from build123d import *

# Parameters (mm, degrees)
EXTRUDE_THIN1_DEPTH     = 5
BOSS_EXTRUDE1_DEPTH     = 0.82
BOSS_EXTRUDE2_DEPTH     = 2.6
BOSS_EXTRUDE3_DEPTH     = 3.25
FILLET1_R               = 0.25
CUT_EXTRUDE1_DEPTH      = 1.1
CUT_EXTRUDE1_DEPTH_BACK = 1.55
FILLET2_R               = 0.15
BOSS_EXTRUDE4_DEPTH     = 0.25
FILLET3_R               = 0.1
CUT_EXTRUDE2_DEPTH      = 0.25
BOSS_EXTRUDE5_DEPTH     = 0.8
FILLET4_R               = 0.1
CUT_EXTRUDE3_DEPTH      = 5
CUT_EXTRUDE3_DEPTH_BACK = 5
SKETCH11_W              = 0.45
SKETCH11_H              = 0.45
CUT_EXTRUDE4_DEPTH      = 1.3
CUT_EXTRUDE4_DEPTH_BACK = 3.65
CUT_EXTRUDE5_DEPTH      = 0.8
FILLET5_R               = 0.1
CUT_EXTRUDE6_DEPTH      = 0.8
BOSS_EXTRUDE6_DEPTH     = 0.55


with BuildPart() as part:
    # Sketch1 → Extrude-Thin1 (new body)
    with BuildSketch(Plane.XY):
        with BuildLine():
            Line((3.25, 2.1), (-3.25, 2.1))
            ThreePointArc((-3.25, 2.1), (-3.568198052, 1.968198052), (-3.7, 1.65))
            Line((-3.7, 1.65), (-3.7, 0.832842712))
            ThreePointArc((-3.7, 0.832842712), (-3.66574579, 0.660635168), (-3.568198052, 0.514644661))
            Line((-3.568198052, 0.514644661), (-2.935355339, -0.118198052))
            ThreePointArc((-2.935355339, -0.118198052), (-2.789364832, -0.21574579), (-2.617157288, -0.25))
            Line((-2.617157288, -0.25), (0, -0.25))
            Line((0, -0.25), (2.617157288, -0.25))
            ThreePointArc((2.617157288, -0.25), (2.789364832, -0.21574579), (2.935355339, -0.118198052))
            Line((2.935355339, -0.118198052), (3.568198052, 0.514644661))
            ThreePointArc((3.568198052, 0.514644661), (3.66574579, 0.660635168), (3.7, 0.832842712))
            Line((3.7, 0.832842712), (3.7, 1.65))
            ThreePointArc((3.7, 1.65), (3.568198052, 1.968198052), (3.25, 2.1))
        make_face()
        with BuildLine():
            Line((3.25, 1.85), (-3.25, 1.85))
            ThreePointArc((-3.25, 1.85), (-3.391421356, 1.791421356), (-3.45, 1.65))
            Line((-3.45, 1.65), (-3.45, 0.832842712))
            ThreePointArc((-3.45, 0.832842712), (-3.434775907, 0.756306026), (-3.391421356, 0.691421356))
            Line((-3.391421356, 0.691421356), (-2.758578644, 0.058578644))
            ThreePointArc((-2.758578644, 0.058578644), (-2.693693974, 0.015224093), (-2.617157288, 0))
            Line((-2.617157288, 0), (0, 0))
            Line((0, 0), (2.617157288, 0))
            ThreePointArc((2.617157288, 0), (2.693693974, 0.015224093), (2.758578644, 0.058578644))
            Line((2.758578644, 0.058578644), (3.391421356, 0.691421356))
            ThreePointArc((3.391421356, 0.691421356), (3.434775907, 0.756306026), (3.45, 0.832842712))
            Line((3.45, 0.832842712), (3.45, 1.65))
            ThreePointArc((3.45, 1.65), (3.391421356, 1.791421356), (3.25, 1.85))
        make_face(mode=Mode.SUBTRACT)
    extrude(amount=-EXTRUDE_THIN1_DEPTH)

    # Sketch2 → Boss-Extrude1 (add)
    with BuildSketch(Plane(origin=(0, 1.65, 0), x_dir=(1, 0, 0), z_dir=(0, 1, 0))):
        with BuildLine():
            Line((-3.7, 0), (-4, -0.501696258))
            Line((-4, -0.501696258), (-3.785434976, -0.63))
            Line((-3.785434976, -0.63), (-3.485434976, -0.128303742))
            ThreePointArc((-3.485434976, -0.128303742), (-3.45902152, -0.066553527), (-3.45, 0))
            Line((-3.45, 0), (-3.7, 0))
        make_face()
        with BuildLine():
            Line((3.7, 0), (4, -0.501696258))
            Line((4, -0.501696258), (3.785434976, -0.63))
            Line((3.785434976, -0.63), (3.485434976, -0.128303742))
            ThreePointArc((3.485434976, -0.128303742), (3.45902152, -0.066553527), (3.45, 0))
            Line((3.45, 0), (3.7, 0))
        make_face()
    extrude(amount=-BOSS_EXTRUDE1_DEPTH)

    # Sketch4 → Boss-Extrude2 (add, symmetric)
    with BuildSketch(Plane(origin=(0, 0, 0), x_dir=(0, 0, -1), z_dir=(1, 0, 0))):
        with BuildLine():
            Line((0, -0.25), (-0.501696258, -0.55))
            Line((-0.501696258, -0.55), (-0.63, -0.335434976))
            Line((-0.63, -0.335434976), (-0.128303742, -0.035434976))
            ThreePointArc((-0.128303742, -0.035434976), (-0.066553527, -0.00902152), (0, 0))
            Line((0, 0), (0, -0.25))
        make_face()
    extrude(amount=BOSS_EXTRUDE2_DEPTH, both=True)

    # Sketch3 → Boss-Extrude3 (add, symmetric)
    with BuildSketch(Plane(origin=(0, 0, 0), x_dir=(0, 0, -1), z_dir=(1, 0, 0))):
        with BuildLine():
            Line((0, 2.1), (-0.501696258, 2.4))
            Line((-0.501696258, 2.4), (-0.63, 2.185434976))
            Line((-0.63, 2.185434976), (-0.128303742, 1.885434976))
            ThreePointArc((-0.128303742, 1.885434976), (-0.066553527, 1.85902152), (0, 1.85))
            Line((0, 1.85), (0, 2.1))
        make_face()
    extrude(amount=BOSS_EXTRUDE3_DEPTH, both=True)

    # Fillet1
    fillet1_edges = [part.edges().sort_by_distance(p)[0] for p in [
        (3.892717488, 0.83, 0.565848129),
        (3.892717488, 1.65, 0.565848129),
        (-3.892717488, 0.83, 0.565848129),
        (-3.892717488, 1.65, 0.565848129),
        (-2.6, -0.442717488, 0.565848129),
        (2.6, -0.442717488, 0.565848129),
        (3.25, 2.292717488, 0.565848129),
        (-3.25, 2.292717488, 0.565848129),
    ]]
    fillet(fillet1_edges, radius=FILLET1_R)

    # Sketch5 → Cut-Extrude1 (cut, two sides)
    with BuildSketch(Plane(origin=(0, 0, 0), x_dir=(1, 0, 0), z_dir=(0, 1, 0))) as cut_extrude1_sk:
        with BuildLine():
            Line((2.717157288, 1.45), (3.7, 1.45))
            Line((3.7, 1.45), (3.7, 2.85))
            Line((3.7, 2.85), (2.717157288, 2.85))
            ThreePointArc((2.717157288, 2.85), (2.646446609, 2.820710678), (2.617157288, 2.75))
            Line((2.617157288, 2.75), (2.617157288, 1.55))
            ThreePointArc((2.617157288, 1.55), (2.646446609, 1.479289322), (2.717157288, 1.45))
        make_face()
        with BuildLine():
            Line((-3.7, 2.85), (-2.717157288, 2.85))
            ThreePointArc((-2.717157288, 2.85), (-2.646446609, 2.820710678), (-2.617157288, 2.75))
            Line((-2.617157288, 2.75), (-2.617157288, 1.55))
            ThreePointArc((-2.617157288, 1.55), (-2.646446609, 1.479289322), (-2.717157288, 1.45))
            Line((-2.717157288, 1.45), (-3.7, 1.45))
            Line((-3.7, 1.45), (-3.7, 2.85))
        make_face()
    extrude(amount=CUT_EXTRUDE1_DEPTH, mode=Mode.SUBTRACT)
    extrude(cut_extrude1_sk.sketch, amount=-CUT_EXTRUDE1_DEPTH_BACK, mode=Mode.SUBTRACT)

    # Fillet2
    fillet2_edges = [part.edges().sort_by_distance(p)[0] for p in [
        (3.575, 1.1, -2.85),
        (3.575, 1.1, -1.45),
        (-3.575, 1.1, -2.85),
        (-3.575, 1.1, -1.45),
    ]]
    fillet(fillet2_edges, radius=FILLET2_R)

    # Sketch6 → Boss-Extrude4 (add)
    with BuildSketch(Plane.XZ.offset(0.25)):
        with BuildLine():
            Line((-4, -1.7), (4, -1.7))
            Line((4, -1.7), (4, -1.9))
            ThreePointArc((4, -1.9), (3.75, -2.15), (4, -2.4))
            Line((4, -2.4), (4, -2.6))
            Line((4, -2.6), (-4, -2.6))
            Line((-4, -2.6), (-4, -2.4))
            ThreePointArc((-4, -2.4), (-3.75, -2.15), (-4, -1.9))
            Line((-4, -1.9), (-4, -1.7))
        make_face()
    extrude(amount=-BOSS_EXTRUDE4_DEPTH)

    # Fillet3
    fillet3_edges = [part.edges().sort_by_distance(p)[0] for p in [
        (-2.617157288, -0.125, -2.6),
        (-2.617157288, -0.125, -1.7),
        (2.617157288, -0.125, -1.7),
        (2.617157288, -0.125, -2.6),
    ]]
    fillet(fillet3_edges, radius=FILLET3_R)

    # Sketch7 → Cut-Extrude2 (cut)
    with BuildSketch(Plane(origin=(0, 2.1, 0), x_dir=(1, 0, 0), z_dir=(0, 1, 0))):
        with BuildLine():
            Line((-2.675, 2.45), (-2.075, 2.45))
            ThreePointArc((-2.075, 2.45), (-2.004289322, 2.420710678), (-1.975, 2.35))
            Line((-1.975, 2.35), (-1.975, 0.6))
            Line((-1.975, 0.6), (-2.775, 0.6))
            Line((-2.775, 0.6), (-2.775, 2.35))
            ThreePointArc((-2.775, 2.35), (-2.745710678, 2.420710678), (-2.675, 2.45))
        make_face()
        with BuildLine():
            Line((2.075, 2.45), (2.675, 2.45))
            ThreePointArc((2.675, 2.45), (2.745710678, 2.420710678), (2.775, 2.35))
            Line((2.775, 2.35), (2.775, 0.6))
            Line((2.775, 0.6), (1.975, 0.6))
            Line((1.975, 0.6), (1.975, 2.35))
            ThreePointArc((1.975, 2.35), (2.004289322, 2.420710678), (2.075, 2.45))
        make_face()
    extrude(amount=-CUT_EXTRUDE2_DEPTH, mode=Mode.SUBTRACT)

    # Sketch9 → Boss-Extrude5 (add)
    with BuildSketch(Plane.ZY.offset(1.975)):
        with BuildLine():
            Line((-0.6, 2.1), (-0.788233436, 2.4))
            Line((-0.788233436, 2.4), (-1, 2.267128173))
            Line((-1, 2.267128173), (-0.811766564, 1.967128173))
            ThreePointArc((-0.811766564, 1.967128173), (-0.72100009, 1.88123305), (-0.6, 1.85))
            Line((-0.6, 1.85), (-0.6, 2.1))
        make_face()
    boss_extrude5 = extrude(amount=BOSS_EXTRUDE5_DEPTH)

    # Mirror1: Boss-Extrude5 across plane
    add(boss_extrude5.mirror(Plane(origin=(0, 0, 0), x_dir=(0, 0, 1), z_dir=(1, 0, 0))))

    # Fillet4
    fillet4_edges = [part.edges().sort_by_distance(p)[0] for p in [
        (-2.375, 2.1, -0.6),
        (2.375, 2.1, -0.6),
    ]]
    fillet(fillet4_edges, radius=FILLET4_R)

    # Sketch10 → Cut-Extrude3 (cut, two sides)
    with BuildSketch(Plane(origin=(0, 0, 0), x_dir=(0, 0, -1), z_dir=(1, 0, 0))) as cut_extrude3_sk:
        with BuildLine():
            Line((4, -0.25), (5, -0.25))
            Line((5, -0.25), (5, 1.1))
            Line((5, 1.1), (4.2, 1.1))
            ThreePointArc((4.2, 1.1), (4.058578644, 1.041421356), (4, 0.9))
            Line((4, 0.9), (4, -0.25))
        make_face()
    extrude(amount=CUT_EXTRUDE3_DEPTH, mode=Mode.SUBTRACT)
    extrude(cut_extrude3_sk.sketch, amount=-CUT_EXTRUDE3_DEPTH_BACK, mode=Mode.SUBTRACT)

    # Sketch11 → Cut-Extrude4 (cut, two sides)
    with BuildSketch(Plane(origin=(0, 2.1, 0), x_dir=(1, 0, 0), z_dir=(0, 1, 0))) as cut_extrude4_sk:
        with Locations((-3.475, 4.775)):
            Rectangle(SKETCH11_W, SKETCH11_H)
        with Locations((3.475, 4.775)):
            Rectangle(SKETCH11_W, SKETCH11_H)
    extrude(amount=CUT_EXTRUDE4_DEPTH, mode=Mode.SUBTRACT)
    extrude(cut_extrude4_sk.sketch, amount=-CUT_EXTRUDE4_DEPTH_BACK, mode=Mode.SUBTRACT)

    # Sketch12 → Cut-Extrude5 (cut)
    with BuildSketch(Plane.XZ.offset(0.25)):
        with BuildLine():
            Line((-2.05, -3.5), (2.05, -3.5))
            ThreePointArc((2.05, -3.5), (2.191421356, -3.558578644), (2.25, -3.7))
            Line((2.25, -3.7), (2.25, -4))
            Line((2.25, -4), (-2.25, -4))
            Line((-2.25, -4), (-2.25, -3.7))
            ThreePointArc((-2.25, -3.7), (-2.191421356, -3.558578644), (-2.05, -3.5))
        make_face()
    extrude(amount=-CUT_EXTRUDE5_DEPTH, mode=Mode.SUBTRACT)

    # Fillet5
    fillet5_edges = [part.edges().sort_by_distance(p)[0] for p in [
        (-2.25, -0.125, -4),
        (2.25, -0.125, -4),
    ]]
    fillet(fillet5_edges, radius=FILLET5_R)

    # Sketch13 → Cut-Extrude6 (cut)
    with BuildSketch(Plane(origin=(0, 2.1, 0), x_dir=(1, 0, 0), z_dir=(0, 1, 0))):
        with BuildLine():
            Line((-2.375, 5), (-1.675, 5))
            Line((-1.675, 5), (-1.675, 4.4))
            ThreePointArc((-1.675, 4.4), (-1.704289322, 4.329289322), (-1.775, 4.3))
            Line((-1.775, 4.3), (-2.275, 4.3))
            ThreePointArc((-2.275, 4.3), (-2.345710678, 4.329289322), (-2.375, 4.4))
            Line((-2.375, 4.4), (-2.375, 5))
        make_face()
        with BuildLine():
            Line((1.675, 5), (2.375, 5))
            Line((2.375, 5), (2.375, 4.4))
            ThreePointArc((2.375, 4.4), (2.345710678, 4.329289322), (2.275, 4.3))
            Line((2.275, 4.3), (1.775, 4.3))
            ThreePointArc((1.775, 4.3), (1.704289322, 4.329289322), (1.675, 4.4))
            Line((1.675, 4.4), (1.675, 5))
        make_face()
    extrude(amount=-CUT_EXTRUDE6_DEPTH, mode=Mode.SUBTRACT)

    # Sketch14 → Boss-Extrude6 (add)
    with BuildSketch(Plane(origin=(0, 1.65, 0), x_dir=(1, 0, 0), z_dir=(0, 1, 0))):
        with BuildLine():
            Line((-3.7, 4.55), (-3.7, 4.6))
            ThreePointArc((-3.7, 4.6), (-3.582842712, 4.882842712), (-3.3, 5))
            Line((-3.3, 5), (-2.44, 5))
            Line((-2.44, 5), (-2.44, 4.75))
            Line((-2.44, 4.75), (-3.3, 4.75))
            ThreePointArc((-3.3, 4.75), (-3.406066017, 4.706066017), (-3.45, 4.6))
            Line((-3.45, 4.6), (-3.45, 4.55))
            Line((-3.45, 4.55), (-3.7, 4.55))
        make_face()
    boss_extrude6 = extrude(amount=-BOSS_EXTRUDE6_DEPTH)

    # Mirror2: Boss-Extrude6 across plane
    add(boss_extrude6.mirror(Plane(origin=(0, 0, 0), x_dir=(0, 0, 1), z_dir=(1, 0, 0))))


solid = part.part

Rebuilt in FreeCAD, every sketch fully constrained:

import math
import FreeCAD as App
import Part
import Sketcher
from FreeCAD import Vector


def edges_at(feature, points):
    """Names of the edges that pass closest to the given points."""
    edges = feature.Shape.Edges
    near = lambda p: min(range(len(edges)), key=lambda i: edges[i].distToShape(Part.Vertex(*p))[0])
    return sorted({f"Edge{near(p) + 1}" for p in points})

doc = App.newDocument("Part")
body = doc.addObject("PartDesign::Body", "Body")

sketch1 = doc.addObject("Sketcher::SketchObject", "Sketch")
body.addObject(sketch1)
sketch1.AttachmentSupport = (doc.XY_Plane, [""])
sketch1.MapMode = "FlatFace"
sketch1.addGeometry(Part.LineSegment(Vector(3.25, 2.1, 0), Vector(-3.25, 2.1, 0)), False)
sketch1.addGeometry(Part.ArcOfCircle(Part.Circle(Vector(-3.25, 1.65, 0), Vector(0, 0, 1), 0.45), math.radians(90), math.radians(180)), False)
sketch1.addGeometry(Part.LineSegment(Vector(-3.7, 1.65, 0), Vector(-3.7, 0.83, 0)), False)
sketch1.addGeometry(Part.ArcOfCircle(Part.Circle(Vector(-3.25, 0.83, 0), Vector(0, 0, 1), 0.45), math.radians(180), math.radians(225)), False)
sketch1.addGeometry(Part.LineSegment(Vector(-3.57, 0.51, 0), Vector(-2.94, -0.12, 0)), False)
sketch1.addGeometry(Part.ArcOfCircle(Part.Circle(Vector(-2.62, 0.2, 0), Vector(0, 0, 1), 0.45), math.radians(-135), math.radians(-90)), False)
sketch1.addGeometry(Part.LineSegment(Vector(-2.62, -0.25, 0), Vector(2.62, -0.25, 0)), False)
sketch1.addGeometry(Part.ArcOfCircle(Part.Circle(Vector(2.62, 0.2, 0), Vector(0, 0, 1), 0.45), math.radians(-90), math.radians(-45)), False)
sketch1.addGeometry(Part.LineSegment(Vector(2.94, -0.12, 0), Vector(3.57, 0.51, 0)), False)
sketch1.addGeometry(Part.ArcOfCircle(Part.Circle(Vector(3.25, 0.83, 0), Vector(0, 0, 1), 0.45), math.radians(-45), math.radians(0)), False)
sketch1.addGeometry(Part.LineSegment(Vector(3.7, 0.83, 0), Vector(3.7, 1.65, 0)), False)
sketch1.addGeometry(Part.ArcOfCircle(Part.Circle(Vector(3.25, 1.65, 0), Vector(0, 0, 1), 0.45), math.radians(0), math.radians(90)), False)
sketch1.addGeometry(Part.LineSegment(Vector(-3.25, 1.85, 0), Vector(3.25, 1.85, 0)), False)
sketch1.addGeometry(Part.ArcOfCircle(Part.Circle(Vector(3.25, 1.65, 0), Vector(0, 0, 1), 0.2), math.radians(0), math.radians(90)), False)
sketch1.addGeometry(Part.LineSegment(Vector(3.45, 1.65, 0), Vector(3.45, 0.83, 0)), False)
sketch1.addGeometry(Part.ArcOfCircle(Part.Circle(Vector(3.25, 0.83, 0), Vector(0, 0, 1), 0.2), math.radians(-45), math.radians(0)), False)
sketch1.addGeometry(Part.LineSegment(Vector(3.39, 0.69, 0), Vector(2.76, 0.06, 0)), False)
sketch1.addGeometry(Part.ArcOfCircle(Part.Circle(Vector(2.62, 0.2, 0), Vector(0, 0, 1), 0.2), math.radians(-90), math.radians(-45)), False)
sketch1.addGeometry(Part.LineSegment(Vector(2.62, 0, 0), Vector(-2.62, 0, 0)), False)
sketch1.addGeometry(Part.ArcOfCircle(Part.Circle(Vector(-2.62, 0.2, 0), Vector(0, 0, 1), 0.2), math.radians(-135), math.radians(-90)), False)
sketch1.addGeometry(Part.LineSegment(Vector(-2.76, 0.06, 0), Vector(-3.39, 0.69, 0)), False)
sketch1.addGeometry(Part.ArcOfCircle(Part.Circle(Vector(-3.25, 0.83, 0), Vector(0, 0, 1), 0.2), math.radians(180), math.radians(225)), False)
sketch1.addGeometry(Part.LineSegment(Vector(-3.45, 0.83, 0), Vector(-3.45, 1.65, 0)), False)
sketch1.addGeometry(Part.ArcOfCircle(Part.Circle(Vector(-3.25, 1.65, 0), Vector(0, 0, 1), 0.2), math.radians(90), math.radians(180)), False)
sketch1.addConstraint(Sketcher.Constraint("Tangent", 0, 2, 1, 1))
sketch1.addConstraint(Sketcher.Constraint("Tangent", 1, 2, 2, 1))
sketch1.addConstraint(Sketcher.Constraint("Tangent", 2, 2, 3, 1))
sketch1.addConstraint(Sketcher.Constraint("Tangent", 3, 2, 4, 1))
sketch1.addConstraint(Sketcher.Constraint("Tangent", 4, 2, 5, 1))
sketch1.addConstraint(Sketcher.Constraint("Tangent", 5, 2, 6, 1))
sketch1.addConstraint(Sketcher.Constraint("Tangent", 6, 2, 7, 1))
sketch1.addConstraint(Sketcher.Constraint("Tangent", 7, 2, 8, 1))
sketch1.addConstraint(Sketcher.Constraint("Tangent", 8, 2, 9, 1))
sketch1.addConstraint(Sketcher.Constraint("Tangent", 9, 2, 10, 1))
sketch1.addConstraint(Sketcher.Constraint("Tangent", 10, 2, 11, 1))
sketch1.addConstraint(Sketcher.Constraint("Tangent", 11, 2, 0, 1))
sketch1.addConstraint(Sketcher.Constraint("Tangent", 12, 2, 13, 2))
sketch1.addConstraint(Sketcher.Constraint("Tangent", 13, 1, 14, 1))
sketch1.addConstraint(Sketcher.Constraint("Tangent", 14, 2, 15, 2))
sketch1.addConstraint(Sketcher.Constraint("Tangent", 15, 1, 16, 1))
sketch1.addConstraint(Sketcher.Constraint("Tangent", 16, 2, 17, 2))
sketch1.addConstraint(Sketcher.Constraint("Tangent", 17, 1, 18, 1))
sketch1.addConstraint(Sketcher.Constraint("Tangent", 18, 2, 19, 2))
sketch1.addConstraint(Sketcher.Constraint("Tangent", 19, 1, 20, 1))
sketch1.addConstraint(Sketcher.Constraint("Tangent", 20, 2, 21, 2))
sketch1.addConstraint(Sketcher.Constraint("Tangent", 21, 1, 22, 1))
sketch1.addConstraint(Sketcher.Constraint("Tangent", 22, 2, 23, 2))
sketch1.addConstraint(Sketcher.Constraint("Tangent", 23, 1, 12, 1))
sketch1.addConstraint(Sketcher.Constraint("Horizontal", 0))
sketch1.addConstraint(Sketcher.Constraint("Vertical", 2))
sketch1.addConstraint(Sketcher.Constraint("Horizontal", 6))
sketch1.addConstraint(Sketcher.Constraint("Vertical", 10))
sketch1.addConstraint(Sketcher.Constraint("Horizontal", 12))
sketch1.addConstraint(Sketcher.Constraint("Vertical", 14))
sketch1.addConstraint(Sketcher.Constraint("Horizontal", 18))
sketch1.addConstraint(Sketcher.Constraint("Vertical", 22))
sketch1.addConstraint(Sketcher.Constraint("Coincident", 13, 3, 11, 3))
sketch1.addConstraint(Sketcher.Constraint("Coincident", 15, 3, 9, 3))
sketch1.addConstraint(Sketcher.Constraint("Coincident", 17, 3, 7, 3))
sketch1.addConstraint(Sketcher.Constraint("Coincident", 19, 3, 5, 3))
sketch1.addConstraint(Sketcher.Constraint("Coincident", 21, 3, 3, 3))
sketch1.addConstraint(Sketcher.Constraint("Coincident", 23, 3, 1, 3))
sketch1.addConstraint(Sketcher.Constraint("Equal", 1, 3))
sketch1.addConstraint(Sketcher.Constraint("Equal", 3, 5))
sketch1.addConstraint(Sketcher.Constraint("Equal", 5, 7))
sketch1.addConstraint(Sketcher.Constraint("Equal", 7, 9))
sketch1.addConstraint(Sketcher.Constraint("Equal", 9, 11))
sketch1.addConstraint(Sketcher.Constraint("Equal", 15, 17))
sketch1.addConstraint(Sketcher.Constraint("Symmetric", 17, 1, 18, 2, -1, 1))
sketch1.addConstraint(Sketcher.Constraint("Symmetric", 3, 3, 9, 3, -2))
sketch1.addConstraint(Sketcher.Constraint("Perpendicular", 4, 8))
sketch1.addConstraint(Sketcher.Constraint("Radius", 13, 0.2))
sketch1.addConstraint(Sketcher.Constraint("Radius", 1, 0.45))
sketch1.addConstraint(Sketcher.Constraint("DistanceX", 0, 2, 0, 1, 6.5))
sketch1.addConstraint(Sketcher.Constraint("DistanceY", -1, 1, 0, 2, 2.1))
sketch1.addConstraint(Sketcher.Constraint("DistanceX", 6, 1, 6, 2, 5.234315))
pad1 = doc.addObject("PartDesign::Pad", "Pad")
body.addObject(pad1)
pad1.Profile = sketch1
pad1.Length = 5
pad1.Reversed = True

sketch2 = doc.addObject("Sketcher::SketchObject", "Sketch001")
body.addObject(sketch2)
sketch2.AttachmentSupport = (doc.XZ_Plane, [""])
sketch2.MapMode = "FlatFace"
sketch2.AttachmentOffset = App.Placement(Vector(0, 0, -1.65), App.Rotation())
sketch2.addGeometry(Part.LineSegment(Vector(-3.7, 0, 0), Vector(-4, 0.5, 0)), False)
sketch2.addGeometry(Part.LineSegment(Vector(-4, 0.5, 0), Vector(-3.79, 0.63, 0)), False)
sketch2.addGeometry(Part.LineSegment(Vector(-3.79, 0.63, 0), Vector(-3.49, 0.13, 0)), False)
sketch2.addGeometry(Part.ArcOfCircle(Part.Circle(Vector(-3.7, 0, 0), Vector(0, 0, 1), 0.25), math.radians(0), math.radians(31)), False)
sketch2.addGeometry(Part.LineSegment(Vector(-3.45, 0, 0), Vector(-3.7, 0, 0)), False)
sketch2.addGeometry(Part.LineSegment(Vector(4, 0.5, 0), Vector(3.7, 0, 0)), False)
sketch2.addGeometry(Part.LineSegment(Vector(3.7, 0, 0), Vector(3.45, 0, 0)), False)
sketch2.addGeometry(Part.ArcOfCircle(Part.Circle(Vector(3.7, 0, 0), Vector(0, 0, 1), 0.25), math.radians(149), math.radians(180)), False)
sketch2.addGeometry(Part.LineSegment(Vector(3.49, 0.13, 0), Vector(3.79, 0.63, 0)), False)
sketch2.addGeometry(Part.LineSegment(Vector(3.79, 0.63, 0), Vector(4, 0.5, 0)), False)
sketch2.addConstraint(Sketcher.Constraint("Coincident", 0, 2, 1, 1))
sketch2.addConstraint(Sketcher.Constraint("Coincident", 1, 2, 2, 1))
sketch2.addConstraint(Sketcher.Constraint("Tangent", 2, 2, 3, 2))
sketch2.addConstraint(Sketcher.Constraint("Coincident", 3, 1, 4, 1))
sketch2.addConstraint(Sketcher.Constraint("Coincident", 4, 2, 0, 1))
sketch2.addConstraint(Sketcher.Constraint("Coincident", 5, 2, 6, 1))
sketch2.addConstraint(Sketcher.Constraint("Coincident", 6, 2, 7, 2))
sketch2.addConstraint(Sketcher.Constraint("Tangent", 7, 1, 8, 1))
sketch2.addConstraint(Sketcher.Constraint("Coincident", 8, 2, 9, 1))
sketch2.addConstraint(Sketcher.Constraint("Coincident", 9, 2, 5, 1))
sketch2.addConstraint(Sketcher.Constraint("Horizontal", 4))
sketch2.addConstraint(Sketcher.Constraint("Horizontal", 6))
sketch2.addConstraint(Sketcher.Constraint("Coincident", 4, 2, 3, 3))
sketch2.addConstraint(Sketcher.Constraint("Coincident", 5, 2, 7, 3))
sketch2.addConstraint(Sketcher.Constraint("Equal", 3, 7))
sketch2.addConstraint(Sketcher.Constraint("Symmetric", 3, 3, 7, 3, -1, 1))
sketch2.addConstraint(Sketcher.Constraint("Symmetric", 2, 2, 7, 1, -2))
sketch2.addConstraint(Sketcher.Constraint("Symmetric", 0, 2, 9, 2, -2))
sketch2.addConstraint(Sketcher.Constraint("Perpendicular", 0, 1))
sketch2.addConstraint(Sketcher.Constraint("Perpendicular", 1, 2))
sketch2.addConstraint(Sketcher.Constraint("Perpendicular", 8, 9))
sketch2.addConstraint(Sketcher.Constraint("Radius", 3, 0.25))
sketch2.addConstraint(Sketcher.Constraint("DistanceX", 0, 2, -1, 1, 4.0))
sketch2.addConstraint(Sketcher.Constraint("DistanceX", 3, 3, -1, 1, 3.7))
sketch2.addConstraint(Sketcher.Constraint("DistanceY", -1, 1, 1, 2, 0.63))
pad2 = doc.addObject("PartDesign::Pad", "Pad001")
body.addObject(pad2)
pad2.Profile = sketch2
pad2.Length = 0.82

sketch3 = doc.addObject("Sketcher::SketchObject", "Sketch002")
body.addObject(sketch3)
sketch3.AttachmentSupport = (doc.YZ_Plane, [""])
sketch3.MapMode = "FlatFace"
sketch3.addGeometry(Part.LineSegment(Vector(-0.55, 0.5, 0), Vector(-0.25, 0, 0)), False)
sketch3.addGeometry(Part.LineSegment(Vector(-0.25, 0, 0), Vector(0, 0, 0)), False)
sketch3.addGeometry(Part.ArcOfCircle(Part.Circle(Vector(-0.25, 0, 0), Vector(0, 0, 1), 0.25), math.radians(0), math.radians(31)), False)
sketch3.addGeometry(Part.LineSegment(Vector(-0.04, 0.13, 0), Vector(-0.34, 0.63, 0)), False)
sketch3.addGeometry(Part.LineSegment(Vector(-0.34, 0.63, 0), Vector(-0.55, 0.5, 0)), False)
sketch3.addConstraint(Sketcher.Constraint("Coincident", 0, 2, 1, 1))
sketch3.addConstraint(Sketcher.Constraint("Coincident", 1, 2, 2, 1))
sketch3.addConstraint(Sketcher.Constraint("Tangent", 2, 2, 3, 1))
sketch3.addConstraint(Sketcher.Constraint("Coincident", 3, 2, 4, 1))
sketch3.addConstraint(Sketcher.Constraint("Coincident", 4, 2, 0, 1))
sketch3.addConstraint(Sketcher.Constraint("Horizontal", 1))
sketch3.addConstraint(Sketcher.Constraint("Coincident", 1, 2, -1, 1))
sketch3.addConstraint(Sketcher.Constraint("Coincident", 0, 2, 2, 3))
sketch3.addConstraint(Sketcher.Constraint("Parallel", 0, 3))
sketch3.addConstraint(Sketcher.Constraint("Perpendicular", 3, 4))
sketch3.addConstraint(Sketcher.Constraint("Radius", 2, 0.25))
sketch3.addConstraint(Sketcher.Constraint("DistanceX", 3, 2, 2, 2, 0.3))
sketch3.addConstraint(Sketcher.Constraint("DistanceY", -1, 1, 3, 2, 0.63))
pad3 = doc.addObject("PartDesign::Pad", "Pad002")
body.addObject(pad3)
pad3.Profile = sketch3
pad3.Length = 5.2
pad3.Midplane = True

sketch4 = doc.addObject("Sketcher::SketchObject", "Sketch003")
body.addObject(sketch4)
sketch4.AttachmentSupport = (doc.YZ_Plane, [""])
sketch4.MapMode = "FlatFace"
sketch4.addGeometry(Part.LineSegment(Vector(2.1, 0, 0), Vector(2.4, 0.5, 0)), False)
sketch4.addGeometry(Part.LineSegment(Vector(2.4, 0.5, 0), Vector(2.19, 0.63, 0)), False)
sketch4.addGeometry(Part.LineSegment(Vector(2.19, 0.63, 0), Vector(1.89, 0.13, 0)), False)
sketch4.addGeometry(Part.ArcOfCircle(Part.Circle(Vector(2.1, 0, 0), Vector(0, 0, 1), 0.25), math.radians(149), math.radians(180)), False)
sketch4.addGeometry(Part.LineSegment(Vector(1.85, 0, 0), Vector(2.1, 0, 0)), False)
sketch4.addConstraint(Sketcher.Constraint("Coincident", 0, 2, 1, 1))
sketch4.addConstraint(Sketcher.Constraint("Coincident", 1, 2, 2, 1))
sketch4.addConstraint(Sketcher.Constraint("Tangent", 2, 2, 3, 1))
sketch4.addConstraint(Sketcher.Constraint("Coincident", 3, 2, 4, 1))
sketch4.addConstraint(Sketcher.Constraint("Coincident", 4, 2, 0, 1))
sketch4.addConstraint(Sketcher.Constraint("Horizontal", 4))
sketch4.addConstraint(Sketcher.Constraint("Coincident", 4, 2, 3, 3))
sketch4.addConstraint(Sketcher.Constraint("PointOnObject", 3, 3, -1))
sketch4.addConstraint(Sketcher.Constraint("Perpendicular", 0, 1))
sketch4.addConstraint(Sketcher.Constraint("Perpendicular", 1, 2))
sketch4.addConstraint(Sketcher.Constraint("Radius", 3, 0.25))
sketch4.addConstraint(Sketcher.Constraint("DistanceX", -1, 1, 3, 3, 2.1))
sketch4.addConstraint(Sketcher.Constraint("DistanceX", -1, 1, 0, 2, 2.4))
sketch4.addConstraint(Sketcher.Constraint("DistanceY", -1, 1, 1, 2, 0.63))
pad4 = doc.addObject("PartDesign::Pad", "Pad003")
body.addObject(pad4)
pad4.Profile = sketch4
pad4.Length = 6.5
pad4.Midplane = True
doc.recompute()

fillet = doc.addObject("PartDesign::Fillet", "Fillet")
body.addObject(fillet)
fillet.Base = (pad4, edges_at(pad4, [
    (3.893, 0.83, 0.566),
    (3.893, 1.65, 0.566),
    (-3.893, 0.83, 0.566),
    (-3.893, 1.65, 0.566),
    (-2.6, -0.443, 0.566),
    (2.6, -0.443, 0.566),
    (3.25, 2.293, 0.566),
    (-3.25, 2.293, 0.566),
]))
fillet.Radius = 0.25

sketch5 = doc.addObject("Sketcher::SketchObject", "Sketch004")
body.addObject(sketch5)
sketch5.AttachmentSupport = (doc.XZ_Plane, [""])
sketch5.MapMode = "FlatFace"
sketch5.addGeometry(Part.LineSegment(Vector(2.72, -1.45, 0), Vector(3.7, -1.45, 0)), False)
sketch5.addGeometry(Part.LineSegment(Vector(3.7, -1.45, 0), Vector(3.7, -2.85, 0)), False)
sketch5.addGeometry(Part.LineSegment(Vector(3.7, -2.85, 0), Vector(2.72, -2.85, 0)), False)
sketch5.addGeometry(Part.ArcOfCircle(Part.Circle(Vector(2.72, -2.75, 0), Vector(0, 0, 1), 0.1), math.radians(180), math.radians(270)), False)
sketch5.addGeometry(Part.LineSegment(Vector(2.62, -2.75, 0), Vector(2.62, -1.55, 0)), False)
sketch5.addGeometry(Part.ArcOfCircle(Part.Circle(Vector(2.72, -1.55, 0), Vector(0, 0, 1), 0.1), math.radians(90), math.radians(180)), False)
sketch5.addGeometry(Part.LineSegment(Vector(-2.72, -2.85, 0), Vector(-3.7, -2.85, 0)), False)
sketch5.addGeometry(Part.LineSegment(Vector(-3.7, -2.85, 0), Vector(-3.7, -1.45, 0)), False)
sketch5.addGeometry(Part.LineSegment(Vector(-3.7, -1.45, 0), Vector(-2.72, -1.45, 0)), False)
sketch5.addGeometry(Part.ArcOfCircle(Part.Circle(Vector(-2.72, -1.55, 0), Vector(0, 0, 1), 0.1), math.radians(0), math.radians(90)), False)
sketch5.addGeometry(Part.LineSegment(Vector(-2.62, -1.55, 0), Vector(-2.62, -2.75, 0)), False)
sketch5.addGeometry(Part.ArcOfCircle(Part.Circle(Vector(-2.72, -2.75, 0), Vector(0, 0, 1), 0.1), math.radians(-90), math.radians(0)), False)
sketch5.addConstraint(Sketcher.Constraint("Coincident", 0, 2, 1, 1))
sketch5.addConstraint(Sketcher.Constraint("Coincident", 1, 2, 2, 1))
sketch5.addConstraint(Sketcher.Constraint("Tangent", 2, 2, 3, 2))
sketch5.addConstraint(Sketcher.Constraint("Tangent", 3, 1, 4, 1))
sketch5.addConstraint(Sketcher.Constraint("Tangent", 4, 2, 5, 2))
sketch5.addConstraint(Sketcher.Constraint("Tangent", 5, 1, 0, 1))
sketch5.addConstraint(Sketcher.Constraint("Coincident", 6, 2, 7, 1))
sketch5.addConstraint(Sketcher.Constraint("Coincident", 7, 2, 8, 1))
sketch5.addConstraint(Sketcher.Constraint("Tangent", 8, 2, 9, 2))
sketch5.addConstraint(Sketcher.Constraint("Tangent", 9, 1, 10, 1))
sketch5.addConstraint(Sketcher.Constraint("Tangent", 10, 2, 11, 2))
sketch5.addConstraint(Sketcher.Constraint("Tangent", 11, 1, 6, 1))
sketch5.addConstraint(Sketcher.Constraint("Horizontal", 0))
sketch5.addConstraint(Sketcher.Constraint("Vertical", 1))
sketch5.addConstraint(Sketcher.Constraint("Horizontal", 2))
sketch5.addConstraint(Sketcher.Constraint("Vertical", 4))
sketch5.addConstraint(Sketcher.Constraint("Horizontal", 6))
sketch5.addConstraint(Sketcher.Constraint("Vertical", 7))
sketch5.addConstraint(Sketcher.Constraint("Horizontal", 8))
sketch5.addConstraint(Sketcher.Constraint("Vertical", 10))
sketch5.addConstraint(Sketcher.Constraint("Equal", 3, 5))
sketch5.addConstraint(Sketcher.Constraint("Equal", 5, 9))
sketch5.addConstraint(Sketcher.Constraint("Equal", 9, 11))
sketch5.addConstraint(Sketcher.Constraint("Symmetric", 5, 3, 9, 3, -2))
sketch5.addConstraint(Sketcher.Constraint("Symmetric", 1, 2, 6, 2, -2))
sketch5.addConstraint(Sketcher.Constraint("Radius", 3, 0.1))
sketch5.addConstraint(Sketcher.Constraint("DistanceY", 1, 2, 1, 1, 1.4))
sketch5.addConstraint(Sketcher.Constraint("DistanceX", -1, 1, 0, 2, 3.7))
sketch5.addConstraint(Sketcher.Constraint("DistanceY", 3, 3, -1, 1, 2.75))
sketch5.addConstraint(Sketcher.Constraint("DistanceX", 0, 1, 0, 2, 0.982843))
pocket1 = doc.addObject("PartDesign::Pocket", "Pocket")
body.addObject(pocket1)
pocket1.Profile = sketch5
pocket1.Type = "TwoLengths"
pocket1.Length = 1.1
pocket1.Length2 = 1.55
doc.recompute()

fillet2 = doc.addObject("PartDesign::Fillet", "Fillet001")
body.addObject(fillet2)
fillet2.Base = (pocket1, edges_at(pocket1, [
    (3.575, 1.1, -2.85),
    (3.575, 1.1, -1.45),
    (-3.575, 1.1, -2.85),
    (-3.575, 1.1, -1.45),
]))
fillet2.Radius = 0.15

sketch6 = doc.addObject("Sketcher::SketchObject", "Sketch005")
body.addObject(sketch6)
sketch6.AttachmentSupport = (doc.XZ_Plane, [""])
sketch6.MapMode = "FlatFace"
sketch6.AttachmentOffset = App.Placement(Vector(0, 0, 0.25), App.Rotation())
sketch6.addGeometry(Part.LineSegment(Vector(4, -1.7, 0), Vector(-4, -1.7, 0)), False)
sketch6.addGeometry(Part.LineSegment(Vector(-4, -1.7, 0), Vector(-4, -1.9, 0)), False)
sketch6.addGeometry(Part.ArcOfCircle(Part.Circle(Vector(-4, -2.15, 0), Vector(0, 0, 1), 0.25), math.radians(-90), math.radians(90)), False)
sketch6.addGeometry(Part.LineSegment(Vector(-4, -2.4, 0), Vector(-4, -2.6, 0)), False)
sketch6.addGeometry(Part.LineSegment(Vector(-4, -2.6, 0), Vector(4, -2.6, 0)), False)
sketch6.addGeometry(Part.LineSegment(Vector(4, -2.6, 0), Vector(4, -2.4, 0)), False)
sketch6.addGeometry(Part.ArcOfCircle(Part.Circle(Vector(4, -2.15, 0), Vector(0, 0, 1), 0.25), math.radians(90), math.radians(270)), False)
sketch6.addGeometry(Part.LineSegment(Vector(4, -1.9, 0), Vector(4, -1.7, 0)), False)
sketch6.addConstraint(Sketcher.Constraint("Coincident", 0, 2, 1, 1))
sketch6.addConstraint(Sketcher.Constraint("Coincident", 1, 2, 2, 2))
sketch6.addConstraint(Sketcher.Constraint("Coincident", 2, 1, 3, 1))
sketch6.addConstraint(Sketcher.Constraint("Coincident", 3, 2, 4, 1))
sketch6.addConstraint(Sketcher.Constraint("Coincident", 4, 2, 5, 1))
sketch6.addConstraint(Sketcher.Constraint("Coincident", 5, 2, 6, 2))
sketch6.addConstraint(Sketcher.Constraint("Coincident", 6, 1, 7, 1))
sketch6.addConstraint(Sketcher.Constraint("Coincident", 7, 2, 0, 1))
sketch6.addConstraint(Sketcher.Constraint("Horizontal", 0))
sketch6.addConstraint(Sketcher.Constraint("Vertical", 1))
sketch6.addConstraint(Sketcher.Constraint("Vertical", 3))
sketch6.addConstraint(Sketcher.Constraint("Horizontal", 4))
sketch6.addConstraint(Sketcher.Constraint("Vertical", 5))
sketch6.addConstraint(Sketcher.Constraint("Vertical", 7))
sketch6.addConstraint(Sketcher.Constraint("Equal", 2, 6))
sketch6.addConstraint(Sketcher.Constraint("Symmetric", 2, 3, 6, 3, -2))
sketch6.addConstraint(Sketcher.Constraint("Vertical", 2, 3, 0, 2))
sketch6.addConstraint(Sketcher.Constraint("Vertical", 1, 2, 2, 1))
sketch6.addConstraint(Sketcher.Constraint("Vertical", 6, 3, 4, 2))
sketch6.addConstraint(Sketcher.Constraint("Vertical", 5, 2, 6, 1))
sketch6.addConstraint(Sketcher.Constraint("Equal", 1, 3))
sketch6.addConstraint(Sketcher.Constraint("DistanceX", 0, 2, 0, 1, 8.0))
sketch6.addConstraint(Sketcher.Constraint("Radius", 2, 0.25))
sketch6.addConstraint(Sketcher.Constraint("DistanceY", 1, 2, 1, 1, 0.2))
sketch6.addConstraint(Sketcher.Constraint("DistanceY", 0, 2, -1, 1, 1.7))
pad5 = doc.addObject("PartDesign::Pad", "Pad004")
body.addObject(pad5)
pad5.Profile = sketch6
pad5.Length = 0.25
pad5.Reversed = True
doc.recompute()

fillet3 = doc.addObject("PartDesign::Fillet", "Fillet002")
body.addObject(fillet3)
fillet3.Base = (pad5, edges_at(pad5, [
    (-2.617, -0.125, -2.6),
    (-2.617, -0.125, -1.7),
    (2.617, -0.125, -1.7),
    (2.617, -0.125, -2.6),
]))
fillet3.Radius = 0.1

sketch7 = doc.addObject("Sketcher::SketchObject", "Sketch006")
body.addObject(sketch7)
sketch7.AttachmentSupport = (doc.XZ_Plane, [""])
sketch7.MapMode = "FlatFace"
sketch7.AttachmentOffset = App.Placement(Vector(0, 0, -2.1), App.Rotation())
sketch7.addGeometry(Part.LineSegment(Vector(-2.08, -2.45, 0), Vector(-2.67, -2.45, 0)), False)
sketch7.addGeometry(Part.ArcOfCircle(Part.Circle(Vector(-2.67, -2.35, 0), Vector(0, 0, 1), 0.1), math.radians(180), math.radians(270)), False)
sketch7.addGeometry(Part.LineSegment(Vector(-2.77, -2.35, 0), Vector(-2.77, -0.6, 0)), False)
sketch7.addGeometry(Part.LineSegment(Vector(-2.77, -0.6, 0), Vector(-1.98, -0.6, 0)), False)
sketch7.addGeometry(Part.LineSegment(Vector(-1.98, -0.6, 0), Vector(-1.98, -2.35, 0)), False)
sketch7.addGeometry(Part.ArcOfCircle(Part.Circle(Vector(-2.08, -2.35, 0), Vector(0, 0, 1), 0.1), math.radians(-90), math.radians(0)), False)
sketch7.addGeometry(Part.LineSegment(Vector(2.67, -2.45, 0), Vector(2.08, -2.45, 0)), False)
sketch7.addGeometry(Part.ArcOfCircle(Part.Circle(Vector(2.08, -2.35, 0), Vector(0, 0, 1), 0.1), math.radians(180), math.radians(270)), False)
sketch7.addGeometry(Part.LineSegment(Vector(1.98, -2.35, 0), Vector(1.98, -0.6, 0)), False)
sketch7.addGeometry(Part.LineSegment(Vector(1.98, -0.6, 0), Vector(2.77, -0.6, 0)), False)
sketch7.addGeometry(Part.LineSegment(Vector(2.77, -0.6, 0), Vector(2.77, -2.35, 0)), False)
sketch7.addGeometry(Part.ArcOfCircle(Part.Circle(Vector(2.67, -2.35, 0), Vector(0, 0, 1), 0.1), math.radians(-90), math.radians(0)), False)
sketch7.addConstraint(Sketcher.Constraint("Tangent", 0, 2, 1, 2))
sketch7.addConstraint(Sketcher.Constraint("Tangent", 1, 1, 2, 1))
sketch7.addConstraint(Sketcher.Constraint("Coincident", 2, 2, 3, 1))
sketch7.addConstraint(Sketcher.Constraint("Coincident", 3, 2, 4, 1))
sketch7.addConstraint(Sketcher.Constraint("Tangent", 4, 2, 5, 2))
sketch7.addConstraint(Sketcher.Constraint("Tangent", 5, 1, 0, 1))
sketch7.addConstraint(Sketcher.Constraint("Tangent", 6, 2, 7, 2))
sketch7.addConstraint(Sketcher.Constraint("Tangent", 7, 1, 8, 1))
sketch7.addConstraint(Sketcher.Constraint("Coincident", 8, 2, 9, 1))
sketch7.addConstraint(Sketcher.Constraint("Coincident", 9, 2, 10, 1))
sketch7.addConstraint(Sketcher.Constraint("Tangent", 10, 2, 11, 2))
sketch7.addConstraint(Sketcher.Constraint("Tangent", 11, 1, 6, 1))
sketch7.addConstraint(Sketcher.Constraint("Horizontal", 0))
sketch7.addConstraint(Sketcher.Constraint("Vertical", 2))
sketch7.addConstraint(Sketcher.Constraint("Horizontal", 3))
sketch7.addConstraint(Sketcher.Constraint("Vertical", 4))
sketch7.addConstraint(Sketcher.Constraint("Horizontal", 6))
sketch7.addConstraint(Sketcher.Constraint("Vertical", 8))
sketch7.addConstraint(Sketcher.Constraint("Horizontal", 9))
sketch7.addConstraint(Sketcher.Constraint("Vertical", 10))
sketch7.addConstraint(Sketcher.Constraint("Equal", 1, 5))
sketch7.addConstraint(Sketcher.Constraint("Equal", 5, 7))
sketch7.addConstraint(Sketcher.Constraint("Equal", 7, 11))
sketch7.addConstraint(Sketcher.Constraint("Symmetric", 5, 3, 7, 3, -2))
sketch7.addConstraint(Sketcher.Constraint("Symmetric", 2, 2, 9, 2, -2))
sketch7.addConstraint(Sketcher.Constraint("Radius", 1, 0.1))
sketch7.addConstraint(Sketcher.Constraint("DistanceX", 0, 2, 0, 1, 0.6))
sketch7.addConstraint(Sketcher.Constraint("DistanceY", 2, 1, 2, 2, 1.75))
sketch7.addConstraint(Sketcher.Constraint("DistanceY", 2, 2, -1, 1, 0.6))
sketch7.addConstraint(Sketcher.Constraint("DistanceX", 5, 3, 7, 3, 4.15))
pocket2 = doc.addObject("PartDesign::Pocket", "Pocket001")
body.addObject(pocket2)
pocket2.Profile = sketch7
pocket2.Length = 0.25
pocket2.Reversed = True

sketch8 = doc.addObject("Sketcher::SketchObject", "Sketch007")
body.addObject(sketch8)
sketch8.AttachmentSupport = (doc.YZ_Plane, [""])
sketch8.MapMode = "FlatFace"
sketch8.AttachmentOffset = App.Placement(Vector(0, 0, -1.975), App.Rotation())
sketch8.addGeometry(Part.LineSegment(Vector(2.1, -0.6, 0), Vector(2.4, -0.79, 0)), False)
sketch8.addGeometry(Part.LineSegment(Vector(2.4, -0.79, 0), Vector(2.27, -1, 0)), False)
sketch8.addGeometry(Part.LineSegment(Vector(2.27, -1, 0), Vector(1.97, -0.81, 0)), False)
sketch8.addGeometry(Part.ArcOfCircle(Part.Circle(Vector(2.1, -0.6, 0), Vector(0, 0, 1), 0.25), math.radians(180), math.radians(238)), False)
sketch8.addGeometry(Part.LineSegment(Vector(1.85, -0.6, 0), Vector(2.1, -0.6, 0)), False)
sketch8.addConstraint(Sketcher.Constraint("Coincident", 0, 2, 1, 1))
sketch8.addConstraint(Sketcher.Constraint("Coincident", 1, 2, 2, 1))
sketch8.addConstraint(Sketcher.Constraint("Tangent", 2, 2, 3, 2))
sketch8.addConstraint(Sketcher.Constraint("Coincident", 3, 1, 4, 1))
sketch8.addConstraint(Sketcher.Constraint("Coincident", 4, 2, 0, 1))
sketch8.addConstraint(Sketcher.Constraint("Horizontal", 4))
sketch8.addConstraint(Sketcher.Constraint("Coincident", 4, 2, 3, 3))
sketch8.addConstraint(Sketcher.Constraint("Perpendicular", 0, 1))
sketch8.addConstraint(Sketcher.Constraint("Perpendicular", 1, 2))
sketch8.addConstraint(Sketcher.Constraint("Radius", 3, 0.25))
sketch8.addConstraint(Sketcher.Constraint("DistanceY", 1, 2, -1, 1, 1.0))
sketch8.addConstraint(Sketcher.Constraint("DistanceX", -1, 1, 3, 3, 2.1))
sketch8.addConstraint(Sketcher.Constraint("DistanceY", 3, 3, -1, 1, 0.6))
sketch8.addConstraint(Sketcher.Constraint("DistanceX", -1, 1, 0, 2, 2.4))
pad6 = doc.addObject("PartDesign::Pad", "Pad005")
body.addObject(pad6)
pad6.Profile = sketch8
pad6.Length = 0.8
pad6.Reversed = True
doc.recompute()

mirrored = doc.addObject("PartDesign::Mirrored", "Mirrored")
body.addObject(mirrored)
mirrored.Originals = [pad6]
mirrored.MirrorPlane = (doc.YZ_Plane, [""])
body.Tip = mirrored
doc.recompute()

fillet4 = doc.addObject("PartDesign::Fillet", "Fillet003")
body.addObject(fillet4)
fillet4.Base = (mirrored, edges_at(mirrored, [(-2.375, 2.1, -0.6), (2.375, 2.1, -0.6)]))
fillet4.Radius = 0.1

sketch9 = doc.addObject("Sketcher::SketchObject", "Sketch008")
body.addObject(sketch9)
sketch9.AttachmentSupport = (doc.YZ_Plane, [""])
sketch9.MapMode = "FlatFace"
sketch9.addGeometry(Part.LineSegment(Vector(-0.25, -4, 0), Vector(-0.25, -5, 0)), False)
sketch9.addGeometry(Part.LineSegment(Vector(-0.25, -5, 0), Vector(1.1, -5, 0)), False)
sketch9.addGeometry(Part.LineSegment(Vector(1.1, -5, 0), Vector(1.1, -4.2, 0)), False)
sketch9.addGeometry(Part.ArcOfCircle(Part.Circle(Vector(0.9, -4.2, 0), Vector(0, 0, 1), 0.2), math.radians(0), math.radians(90)), False)
sketch9.addGeometry(Part.LineSegment(Vector(0.9, -4, 0), Vector(-0.25, -4, 0)), False)
sketch9.addConstraint(Sketcher.Constraint("Coincident", 0, 2, 1, 1))
sketch9.addConstraint(Sketcher.Constraint("Coincident", 1, 2, 2, 1))
sketch9.addConstraint(Sketcher.Constraint("Tangent", 2, 2, 3, 1))
sketch9.addConstraint(Sketcher.Constraint("Tangent", 3, 2, 4, 1))
sketch9.addConstraint(Sketcher.Constraint("Coincident", 4, 2, 0, 1))
sketch9.addConstraint(Sketcher.Constraint("Vertical", 0))
sketch9.addConstraint(Sketcher.Constraint("Horizontal", 1))
sketch9.addConstraint(Sketcher.Constraint("Vertical", 2))
sketch9.addConstraint(Sketcher.Constraint("Horizontal", 4))
sketch9.addConstraint(Sketcher.Constraint("Radius", 3, 0.2))
sketch9.addConstraint(Sketcher.Constraint("DistanceY", 0, 2, 0, 1, 1.0))
sketch9.addConstraint(Sketcher.Constraint("DistanceY", 0, 2, -1, 1, 5.0))
sketch9.addConstraint(Sketcher.Constraint("DistanceX", 1, 1, 1, 2, 1.35))
sketch9.addConstraint(Sketcher.Constraint("DistanceX", -1, 1, 3, 3, 0.9))
pocket3 = doc.addObject("PartDesign::Pocket", "Pocket002")
body.addObject(pocket3)
pocket3.Profile = sketch9
pocket3.Type = "ThroughAll"
pocket3.Midplane = True

sketch10 = doc.addObject("Sketcher::SketchObject", "Sketch009")
body.addObject(sketch10)
sketch10.AttachmentSupport = (doc.XZ_Plane, [""])
sketch10.MapMode = "FlatFace"
sketch10.AttachmentOffset = App.Placement(Vector(0, 0, -2.1), App.Rotation())
sketch10.addGeometry(Part.LineSegment(Vector(-3.7, -5, 0), Vector(-3.7, -4.55, 0)), False)
sketch10.addGeometry(Part.LineSegment(Vector(-3.7, -4.55, 0), Vector(-3.25, -4.55, 0)), False)
sketch10.addGeometry(Part.LineSegment(Vector(-3.25, -4.55, 0), Vector(-3.25, -5, 0)), False)
sketch10.addGeometry(Part.LineSegment(Vector(-3.25, -5, 0), Vector(-3.7, -5, 0)), False)
sketch10.addGeometry(Part.LineSegment(Vector(3.25, -5, 0), Vector(3.25, -4.55, 0)), False)
sketch10.addGeometry(Part.LineSegment(Vector(3.25, -4.55, 0), Vector(3.7, -4.55, 0)), False)
sketch10.addGeometry(Part.LineSegment(Vector(3.7, -4.55, 0), Vector(3.7, -5, 0)), False)
sketch10.addGeometry(Part.LineSegment(Vector(3.7, -5, 0), Vector(3.25, -5, 0)), False)
sketch10.addConstraint(Sketcher.Constraint("Coincident", 0, 2, 1, 1))
sketch10.addConstraint(Sketcher.Constraint("Coincident", 1, 2, 2, 1))
sketch10.addConstraint(Sketcher.Constraint("Coincident", 2, 2, 3, 1))
sketch10.addConstraint(Sketcher.Constraint("Coincident", 3, 2, 0, 1))
sketch10.addConstraint(Sketcher.Constraint("Coincident", 4, 2, 5, 1))
sketch10.addConstraint(Sketcher.Constraint("Coincident", 5, 2, 6, 1))
sketch10.addConstraint(Sketcher.Constraint("Coincident", 6, 2, 7, 1))
sketch10.addConstraint(Sketcher.Constraint("Coincident", 7, 2, 4, 1))
sketch10.addConstraint(Sketcher.Constraint("Vertical", 0))
sketch10.addConstraint(Sketcher.Constraint("Horizontal", 1))
sketch10.addConstraint(Sketcher.Constraint("Vertical", 2))
sketch10.addConstraint(Sketcher.Constraint("Horizontal", 3))
sketch10.addConstraint(Sketcher.Constraint("Vertical", 4))
sketch10.addConstraint(Sketcher.Constraint("Horizontal", 5))
sketch10.addConstraint(Sketcher.Constraint("Vertical", 6))
sketch10.addConstraint(Sketcher.Constraint("Horizontal", 7))
sketch10.addConstraint(Sketcher.Constraint("Symmetric", 1, 2, 4, 2, -2))
sketch10.addConstraint(Sketcher.Constraint("Symmetric", 3, 2, 6, 2, -2))
sketch10.addConstraint(Sketcher.Constraint("Equal", 7, 0))
sketch10.addConstraint(Sketcher.Constraint("DistanceY", 2, 2, -1, 1, 5.0))
sketch10.addConstraint(Sketcher.Constraint("DistanceX", 1, 1, 1, 2, 0.45))
sketch10.addConstraint(Sketcher.Constraint("DistanceX", 0, 2, -1, 1, 3.7))
pocket4 = doc.addObject("PartDesign::Pocket", "Pocket003")
body.addObject(pocket4)
pocket4.Profile = sketch10
pocket4.Type = "ThroughAll"
pocket4.Midplane = True

sketch11 = doc.addObject("Sketcher::SketchObject", "Sketch010")
body.addObject(sketch11)
sketch11.AttachmentSupport = (doc.XZ_Plane, [""])
sketch11.MapMode = "FlatFace"
sketch11.AttachmentOffset = App.Placement(Vector(0, 0, 0.25), App.Rotation())
sketch11.addGeometry(Part.LineSegment(Vector(2.05, -3.5, 0), Vector(-2.05, -3.5, 0)), False)
sketch11.addGeometry(Part.ArcOfCircle(Part.Circle(Vector(-2.05, -3.7, 0), Vector(0, 0, 1), 0.2), math.radians(90), math.radians(180)), False)
sketch11.addGeometry(Part.LineSegment(Vector(-2.25, -3.7, 0), Vector(-2.25, -4, 0)), False)
sketch11.addGeometry(Part.LineSegment(Vector(-2.25, -4, 0), Vector(2.25, -4, 0)), False)
sketch11.addGeometry(Part.LineSegment(Vector(2.25, -4, 0), Vector(2.25, -3.7, 0)), False)
sketch11.addGeometry(Part.ArcOfCircle(Part.Circle(Vector(2.05, -3.7, 0), Vector(0, 0, 1), 0.2), math.radians(0), math.radians(90)), False)
sketch11.addConstraint(Sketcher.Constraint("Tangent", 0, 2, 1, 1))
sketch11.addConstraint(Sketcher.Constraint("Tangent", 1, 2, 2, 1))
sketch11.addConstraint(Sketcher.Constraint("Coincident", 2, 2, 3, 1))
sketch11.addConstraint(Sketcher.Constraint("Coincident", 3, 2, 4, 1))
sketch11.addConstraint(Sketcher.Constraint("Tangent", 4, 2, 5, 1))
sketch11.addConstraint(Sketcher.Constraint("Tangent", 5, 2, 0, 1))
sketch11.addConstraint(Sketcher.Constraint("Horizontal", 0))
sketch11.addConstraint(Sketcher.Constraint("Vertical", 2))
sketch11.addConstraint(Sketcher.Constraint("Horizontal", 3))
sketch11.addConstraint(Sketcher.Constraint("Vertical", 4))
sketch11.addConstraint(Sketcher.Constraint("Equal", 1, 5))
sketch11.addConstraint(Sketcher.Constraint("Radius", 1, 0.2))
sketch11.addConstraint(Sketcher.Constraint("DistanceX", 0, 2, 0, 1, 4.1))
sketch11.addConstraint(Sketcher.Constraint("DistanceY", 2, 2, 2, 1, 0.3))
sketch11.addConstraint(Sketcher.Constraint("DistanceY", 2, 2, -1, 1, 4.0))
sketch11.addConstraint(Sketcher.Constraint("DistanceX", 1, 3, -1, 1, 2.05))
pocket5 = doc.addObject("PartDesign::Pocket", "Pocket004")
body.addObject(pocket5)
pocket5.Profile = sketch11
pocket5.Length = 0.8
doc.recompute()

fillet5 = doc.addObject("PartDesign::Fillet", "Fillet004")
body.addObject(fillet5)
fillet5.Base = (pocket5, edges_at(pocket5, [(-2.25, -0.125, -4), (2.25, -0.125, -4)]))
fillet5.Radius = 0.1

sketch12 = doc.addObject("Sketcher::SketchObject", "Sketch011")
body.addObject(sketch12)
sketch12.AttachmentSupport = (doc.XZ_Plane, [""])
sketch12.MapMode = "FlatFace"
sketch12.AttachmentOffset = App.Placement(Vector(0, 0, -2.1), App.Rotation())
sketch12.addGeometry(Part.LineSegment(Vector(-1.68, -5, 0), Vector(-2.38, -5, 0)), False)
sketch12.addGeometry(Part.LineSegment(Vector(-2.38, -5, 0), Vector(-2.38, -4.4, 0)), False)
sketch12.addGeometry(Part.ArcOfCircle(Part.Circle(Vector(-2.27, -4.4, 0), Vector(0, 0, 1), 0.1), math.radians(90), math.radians(180)), False)
sketch12.addGeometry(Part.LineSegment(Vector(-2.27, -4.3, 0), Vector(-1.77, -4.3, 0)), False)
sketch12.addGeometry(Part.ArcOfCircle(Part.Circle(Vector(-1.77, -4.4, 0), Vector(0, 0, 1), 0.1), math.radians(0), math.radians(90)), False)
sketch12.addGeometry(Part.LineSegment(Vector(-1.68, -4.4, 0), Vector(-1.68, -5, 0)), False)
sketch12.addGeometry(Part.LineSegment(Vector(2.38, -5, 0), Vector(1.68, -5, 0)), False)
sketch12.addGeometry(Part.LineSegment(Vector(1.68, -5, 0), Vector(1.68, -4.4, 0)), False)
sketch12.addGeometry(Part.ArcOfCircle(Part.Circle(Vector(1.77, -4.4, 0), Vector(0, 0, 1), 0.1), math.radians(90), math.radians(180)), False)
sketch12.addGeometry(Part.LineSegment(Vector(1.77, -4.3, 0), Vector(2.27, -4.3, 0)), False)
sketch12.addGeometry(Part.ArcOfCircle(Part.Circle(Vector(2.27, -4.4, 0), Vector(0, 0, 1), 0.1), math.radians(0), math.radians(90)), False)
sketch12.addGeometry(Part.LineSegment(Vector(2.38, -4.4, 0), Vector(2.38, -5, 0)), False)
sketch12.addConstraint(Sketcher.Constraint("Coincident", 0, 2, 1, 1))
sketch12.addConstraint(Sketcher.Constraint("Tangent", 1, 2, 2, 2))
sketch12.addConstraint(Sketcher.Constraint("Tangent", 2, 1, 3, 1))
sketch12.addConstraint(Sketcher.Constraint("Tangent", 3, 2, 4, 2))
sketch12.addConstraint(Sketcher.Constraint("Tangent", 4, 1, 5, 1))
sketch12.addConstraint(Sketcher.Constraint("Coincident", 5, 2, 0, 1))
sketch12.addConstraint(Sketcher.Constraint("Coincident", 6, 2, 7, 1))
sketch12.addConstraint(Sketcher.Constraint("Tangent", 7, 2, 8, 2))
sketch12.addConstraint(Sketcher.Constraint("Tangent", 8, 1, 9, 1))
sketch12.addConstraint(Sketcher.Constraint("Tangent", 9, 2, 10, 2))
sketch12.addConstraint(Sketcher.Constraint("Tangent", 10, 1, 11, 1))
sketch12.addConstraint(Sketcher.Constraint("Coincident", 11, 2, 6, 1))
sketch12.addConstraint(Sketcher.Constraint("Horizontal", 0))
sketch12.addConstraint(Sketcher.Constraint("Vertical", 1))
sketch12.addConstraint(Sketcher.Constraint("Horizontal", 3))
sketch12.addConstraint(Sketcher.Constraint("Vertical", 5))
sketch12.addConstraint(Sketcher.Constraint("Horizontal", 6))
sketch12.addConstraint(Sketcher.Constraint("Vertical", 7))
sketch12.addConstraint(Sketcher.Constraint("Horizontal", 9))
sketch12.addConstraint(Sketcher.Constraint("Vertical", 11))
sketch12.addConstraint(Sketcher.Constraint("Equal", 2, 4))
sketch12.addConstraint(Sketcher.Constraint("Equal", 4, 8))
sketch12.addConstraint(Sketcher.Constraint("Equal", 8, 10))
sketch12.addConstraint(Sketcher.Constraint("Symmetric", 4, 3, 8, 3, -2))
sketch12.addConstraint(Sketcher.Constraint("Symmetric", 0, 2, 11, 2, -2))
sketch12.addConstraint(Sketcher.Constraint("Radius", 2, 0.1))
sketch12.addConstraint(Sketcher.Constraint("DistanceX", 0, 2, 0, 1, 0.7))
sketch12.addConstraint(Sketcher.Constraint("DistanceY", 1, 1, 1, 2, 0.6))
sketch12.addConstraint(Sketcher.Constraint("DistanceY", 0, 2, -1, 1, 5.0))
sketch12.addConstraint(Sketcher.Constraint("DistanceX", 4, 3, 8, 3, 3.55))
pocket6 = doc.addObject("PartDesign::Pocket", "Pocket005")
body.addObject(pocket6)
pocket6.Profile = sketch12
pocket6.Length = 0.8
pocket6.Reversed = True

sketch13 = doc.addObject("Sketcher::SketchObject", "Sketch012")
body.addObject(sketch13)
sketch13.AttachmentSupport = (doc.XZ_Plane, [""])
sketch13.MapMode = "FlatFace"
sketch13.AttachmentOffset = App.Placement(Vector(0, 0, -1.65), App.Rotation())
sketch13.addGeometry(Part.LineSegment(Vector(-3.7, -4.6, 0), Vector(-3.7, -4.55, 0)), False)
sketch13.addGeometry(Part.LineSegment(Vector(-3.7, -4.55, 0), Vector(-3.45, -4.55, 0)), False)
sketch13.addGeometry(Part.LineSegment(Vector(-3.45, -4.55, 0), Vector(-3.45, -4.6, 0)), False)
sketch13.addGeometry(Part.ArcOfCircle(Part.Circle(Vector(-3.3, -4.6, 0), Vector(0, 0, 1), 0.15), math.radians(-180), math.radians(-90)), False)
sketch13.addGeometry(Part.LineSegment(Vector(-3.3, -4.75, 0), Vector(-2.44, -4.75, 0)), False)
sketch13.addGeometry(Part.LineSegment(Vector(-2.44, -4.75, 0), Vector(-2.44, -5, 0)), False)
sketch13.addGeometry(Part.LineSegment(Vector(-2.44, -5, 0), Vector(-3.3, -5, 0)), False)
sketch13.addGeometry(Part.ArcOfCircle(Part.Circle(Vector(-3.3, -4.6, 0), Vector(0, 0, 1), 0.4), math.radians(-180), math.radians(-90)), False)
sketch13.addConstraint(Sketcher.Constraint("Coincident", 0, 2, 1, 1))
sketch13.addConstraint(Sketcher.Constraint("Coincident", 1, 2, 2, 1))
sketch13.addConstraint(Sketcher.Constraint("Tangent", 2, 2, 3, 1))
sketch13.addConstraint(Sketcher.Constraint("Tangent", 3, 2, 4, 1))
sketch13.addConstraint(Sketcher.Constraint("Coincident", 4, 2, 5, 1))
sketch13.addConstraint(Sketcher.Constraint("Coincident", 5, 2, 6, 1))
sketch13.addConstraint(Sketcher.Constraint("Tangent", 6, 2, 7, 2))
sketch13.addConstraint(Sketcher.Constraint("Tangent", 7, 1, 0, 1))
sketch13.addConstraint(Sketcher.Constraint("Vertical", 0))
sketch13.addConstraint(Sketcher.Constraint("Horizontal", 1))
sketch13.addConstraint(Sketcher.Constraint("Vertical", 2))
sketch13.addConstraint(Sketcher.Constraint("Horizontal", 4))
sketch13.addConstraint(Sketcher.Constraint("Vertical", 5))
sketch13.addConstraint(Sketcher.Constraint("Horizontal", 6))
sketch13.addConstraint(Sketcher.Constraint("Coincident", 7, 3, 3, 3))
sketch13.addConstraint(Sketcher.Constraint("Radius", 7, 0.4))
sketch13.addConstraint(Sketcher.Constraint("Radius", 3, 0.15))
sketch13.addConstraint(Sketcher.Constraint("DistanceY", 5, 2, -1, 1, 5.0))
sketch13.addConstraint(Sketcher.Constraint("DistanceX", 4, 1, 4, 2, 0.86))
sketch13.addConstraint(Sketcher.Constraint("DistanceY", 0, 1, 0, 2, 0.05))
sketch13.addConstraint(Sketcher.Constraint("DistanceX", 3, 3, -1, 1, 3.3))
pad7 = doc.addObject("PartDesign::Pad", "Pad006")
body.addObject(pad7)
pad7.Profile = sketch13
pad7.Length = 0.55
doc.recompute()

mirrored2 = doc.addObject("PartDesign::Mirrored", "Mirrored001")
body.addObject(mirrored2)
mirrored2.Originals = [pad7]
mirrored2.MirrorPlane = (doc.YZ_Plane, [""])
body.Tip = mirrored2

doc.recompute()
